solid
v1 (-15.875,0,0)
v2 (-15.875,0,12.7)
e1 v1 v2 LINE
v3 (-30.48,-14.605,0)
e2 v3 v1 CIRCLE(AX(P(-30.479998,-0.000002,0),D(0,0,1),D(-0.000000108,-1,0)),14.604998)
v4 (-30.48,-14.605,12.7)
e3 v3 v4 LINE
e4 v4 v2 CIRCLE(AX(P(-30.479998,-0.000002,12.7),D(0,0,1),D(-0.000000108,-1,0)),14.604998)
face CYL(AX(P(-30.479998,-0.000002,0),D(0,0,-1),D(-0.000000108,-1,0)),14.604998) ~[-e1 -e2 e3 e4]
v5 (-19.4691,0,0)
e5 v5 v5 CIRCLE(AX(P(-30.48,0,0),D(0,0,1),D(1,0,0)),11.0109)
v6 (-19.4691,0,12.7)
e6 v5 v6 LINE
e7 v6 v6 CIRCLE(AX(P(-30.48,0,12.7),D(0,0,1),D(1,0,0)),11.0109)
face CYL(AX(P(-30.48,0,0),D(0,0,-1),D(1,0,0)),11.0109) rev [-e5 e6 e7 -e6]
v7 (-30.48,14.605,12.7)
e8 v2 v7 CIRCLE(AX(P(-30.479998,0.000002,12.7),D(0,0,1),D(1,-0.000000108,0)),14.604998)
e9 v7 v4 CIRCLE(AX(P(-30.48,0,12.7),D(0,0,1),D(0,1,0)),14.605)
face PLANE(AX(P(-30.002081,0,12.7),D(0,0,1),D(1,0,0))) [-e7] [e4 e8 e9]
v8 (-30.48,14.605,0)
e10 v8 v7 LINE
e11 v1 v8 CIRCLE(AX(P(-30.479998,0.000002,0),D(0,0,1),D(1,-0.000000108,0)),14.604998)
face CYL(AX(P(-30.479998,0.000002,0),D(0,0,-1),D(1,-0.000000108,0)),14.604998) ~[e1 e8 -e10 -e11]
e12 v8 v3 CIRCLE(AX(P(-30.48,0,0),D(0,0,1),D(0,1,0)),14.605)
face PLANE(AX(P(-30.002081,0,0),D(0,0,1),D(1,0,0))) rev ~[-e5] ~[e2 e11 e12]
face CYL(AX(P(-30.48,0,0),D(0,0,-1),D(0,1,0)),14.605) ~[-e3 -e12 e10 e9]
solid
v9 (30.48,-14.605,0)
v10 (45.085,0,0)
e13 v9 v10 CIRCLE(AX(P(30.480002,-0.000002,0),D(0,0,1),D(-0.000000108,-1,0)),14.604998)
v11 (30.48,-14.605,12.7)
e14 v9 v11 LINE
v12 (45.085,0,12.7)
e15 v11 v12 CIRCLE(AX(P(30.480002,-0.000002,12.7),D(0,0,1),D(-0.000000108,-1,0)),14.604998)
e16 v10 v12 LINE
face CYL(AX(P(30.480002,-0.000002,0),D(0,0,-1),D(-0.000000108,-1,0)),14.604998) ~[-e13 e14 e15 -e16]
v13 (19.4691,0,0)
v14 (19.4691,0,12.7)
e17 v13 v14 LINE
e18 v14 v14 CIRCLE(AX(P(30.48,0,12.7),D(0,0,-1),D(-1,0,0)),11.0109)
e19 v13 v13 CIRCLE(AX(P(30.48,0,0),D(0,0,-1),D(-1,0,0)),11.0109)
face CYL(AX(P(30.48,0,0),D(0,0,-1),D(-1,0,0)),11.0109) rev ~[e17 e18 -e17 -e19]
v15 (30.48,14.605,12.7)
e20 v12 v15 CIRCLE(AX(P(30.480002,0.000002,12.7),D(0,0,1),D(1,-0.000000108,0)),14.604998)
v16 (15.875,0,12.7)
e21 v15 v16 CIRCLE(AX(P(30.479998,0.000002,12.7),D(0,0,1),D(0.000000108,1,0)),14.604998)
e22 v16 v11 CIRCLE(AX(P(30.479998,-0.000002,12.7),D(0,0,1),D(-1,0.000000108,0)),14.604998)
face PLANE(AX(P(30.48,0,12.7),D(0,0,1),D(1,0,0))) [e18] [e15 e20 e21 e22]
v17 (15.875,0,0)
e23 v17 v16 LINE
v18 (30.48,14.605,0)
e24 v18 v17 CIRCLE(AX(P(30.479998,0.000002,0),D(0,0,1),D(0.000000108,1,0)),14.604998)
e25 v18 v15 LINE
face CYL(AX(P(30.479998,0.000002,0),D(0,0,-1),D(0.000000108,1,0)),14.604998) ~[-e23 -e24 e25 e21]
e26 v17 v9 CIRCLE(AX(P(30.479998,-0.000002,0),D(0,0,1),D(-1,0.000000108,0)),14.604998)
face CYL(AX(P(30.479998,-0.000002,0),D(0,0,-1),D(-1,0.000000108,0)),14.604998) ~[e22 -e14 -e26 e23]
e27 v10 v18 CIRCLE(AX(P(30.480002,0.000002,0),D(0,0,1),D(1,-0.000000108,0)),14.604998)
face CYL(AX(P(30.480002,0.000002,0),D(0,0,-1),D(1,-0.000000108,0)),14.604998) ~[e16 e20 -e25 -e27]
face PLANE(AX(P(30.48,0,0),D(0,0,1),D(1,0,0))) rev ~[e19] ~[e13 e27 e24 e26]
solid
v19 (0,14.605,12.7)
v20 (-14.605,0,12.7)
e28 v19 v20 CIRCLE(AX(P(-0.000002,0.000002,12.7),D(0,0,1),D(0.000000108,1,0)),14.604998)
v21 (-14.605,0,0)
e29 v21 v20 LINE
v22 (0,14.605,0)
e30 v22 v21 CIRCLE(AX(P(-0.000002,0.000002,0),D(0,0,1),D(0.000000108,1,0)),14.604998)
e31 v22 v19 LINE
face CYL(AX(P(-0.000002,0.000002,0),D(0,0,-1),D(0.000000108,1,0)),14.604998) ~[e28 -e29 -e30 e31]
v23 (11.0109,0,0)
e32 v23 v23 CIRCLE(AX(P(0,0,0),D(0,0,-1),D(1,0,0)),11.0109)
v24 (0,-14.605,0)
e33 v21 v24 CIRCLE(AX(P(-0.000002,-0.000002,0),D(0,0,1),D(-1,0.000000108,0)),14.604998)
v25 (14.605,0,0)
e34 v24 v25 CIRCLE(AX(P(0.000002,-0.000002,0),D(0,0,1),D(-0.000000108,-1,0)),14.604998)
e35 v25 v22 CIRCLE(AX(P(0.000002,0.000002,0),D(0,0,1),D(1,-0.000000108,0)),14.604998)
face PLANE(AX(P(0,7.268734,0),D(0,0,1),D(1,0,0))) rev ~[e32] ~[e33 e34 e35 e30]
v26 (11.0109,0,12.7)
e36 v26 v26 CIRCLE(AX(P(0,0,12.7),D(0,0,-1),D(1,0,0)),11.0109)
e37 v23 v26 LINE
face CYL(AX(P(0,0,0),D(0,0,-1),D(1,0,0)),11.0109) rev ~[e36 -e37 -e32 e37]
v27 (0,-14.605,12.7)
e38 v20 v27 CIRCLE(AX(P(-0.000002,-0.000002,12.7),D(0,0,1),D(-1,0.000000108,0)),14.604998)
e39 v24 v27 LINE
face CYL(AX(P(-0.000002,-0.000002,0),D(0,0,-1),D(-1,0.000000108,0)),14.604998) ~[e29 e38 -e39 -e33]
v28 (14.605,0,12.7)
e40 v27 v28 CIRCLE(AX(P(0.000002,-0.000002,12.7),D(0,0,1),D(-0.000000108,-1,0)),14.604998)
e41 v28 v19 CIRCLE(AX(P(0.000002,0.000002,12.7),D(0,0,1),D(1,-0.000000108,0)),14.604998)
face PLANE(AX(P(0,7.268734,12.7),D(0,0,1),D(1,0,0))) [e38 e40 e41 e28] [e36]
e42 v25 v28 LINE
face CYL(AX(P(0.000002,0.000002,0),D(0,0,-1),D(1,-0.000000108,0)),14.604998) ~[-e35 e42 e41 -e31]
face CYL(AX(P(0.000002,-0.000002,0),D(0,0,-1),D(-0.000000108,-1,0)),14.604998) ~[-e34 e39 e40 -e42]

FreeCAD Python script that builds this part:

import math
import FreeCAD as App
import Part
import Sketcher

V = App.Vector
Q = App.Units.Quantity

doc = App.newDocument("Part")
body = doc.addObject("PartDesign::Body", "Body")
body.AllowCompound = True

# Sketch on XY plane
sketch1 = body.newObject("Sketcher::SketchObject", "Sketch")
sketch1.AttachmentSupport = (doc.getObject("XY_Plane"), [""])
sketch1.MapMode = "FlatFace"
sketch1.addGeometry([
    Part.ArcOfCircle(Part.Circle(V(-30, 0, 0), V(0, 0, 1), 15), math.radians(-90), math.radians(0)),  # 0
    Part.ArcOfCircle(Part.Circle(V(-30, 0, 0), V(0, 0, 1), 15), math.radians(0), math.radians(90)),  # 1
    Part.ArcOfCircle(Part.Circle(V(-30, 0, 0), V(0, 0, 1), 15), math.radians(90), math.radians(270)),  # 2
    Part.Circle(V(-30, 0, 0), V(0, 0, 1), 11),  # 3
    Part.ArcOfCircle(Part.Circle(V(0, 0, 0), V(0, 0, 1), 15), math.radians(0), math.radians(90)),  # 4
    Part.ArcOfCircle(Part.Circle(V(0, 0, 0), V(0, 0, 1), 15), math.radians(90), math.radians(180)),  # 5
    Part.ArcOfCircle(Part.Circle(V(0, 0, 0), V(0, 0, 1), 15), math.radians(180), math.radians(270)),  # 6
    Part.ArcOfCircle(Part.Circle(V(0, 0, 0), V(0, 0, 1), 15), math.radians(-90), math.radians(0)),  # 7
    Part.Circle(V(0, 0, 0), V(0, 0, 1), 11),  # 8
    Part.ArcOfCircle(Part.Circle(V(30, 0, 0), V(0, 0, 1), 15), math.radians(90), math.radians(180)),  # 9
    Part.ArcOfCircle(Part.Circle(V(30, 0, 0), V(0, 0, 1), 15), math.radians(180), math.radians(270)),  # 10
    Part.ArcOfCircle(Part.Circle(V(30, 0, 0), V(0, 0, 1), 15), math.radians(-90), math.radians(0)),  # 11
    Part.ArcOfCircle(Part.Circle(V(30, 0, 0), V(0, 0, 1), 15), math.radians(0), math.radians(90)),  # 12
    Part.Circle(V(30, 0, 0), V(0, 0, 1), 11),  # 13
], False)
sketch1.addConstraint([
    Sketcher.Constraint("Tangent", 0, 2, 1, 1),
    Sketcher.Constraint("Tangent", 1, 2, 2, 1),
    Sketcher.Constraint("Tangent", 2, 2, 0, 1),
    Sketcher.Constraint("Tangent", 4, 2, 5, 1),
    Sketcher.Constraint("Tangent", 5, 2, 6, 1),
    Sketcher.Constraint("Tangent", 6, 2, 7, 1),
    Sketcher.Constraint("Tangent", 7, 2, 4, 1),
    Sketcher.Constraint("Tangent", 9, 2, 10, 1),
    Sketcher.Constraint("Tangent", 10, 2, 11, 1),
    Sketcher.Constraint("Tangent", 11, 2, 12, 1),
    Sketcher.Constraint("Tangent", 12, 2, 9, 1),
    Sketcher.Constraint("Coincident", 4, 3, -1, 1),
    Sketcher.Constraint("Coincident", 8, 3, -1, 1),
    Sketcher.Constraint("Coincident", 3, 3, 0, 3),
    Sketcher.Constraint("Coincident", 13, 3, 9, 3),
    Sketcher.Constraint("Equal", 2, 4),
    Sketcher.Constraint("Equal", 4, 5),
    Sketcher.Constraint("Equal", 3, 8),
    Sketcher.Constraint("Equal", 7, 9),
    Sketcher.Constraint("Equal", 9, 10),
    Sketcher.Constraint("Equal", 8, 13),
    Sketcher.Constraint("Symmetric", 0, 3, 9, 3, -1, 1),
    Sketcher.Constraint("Symmetric", 2, 2, 10, 2, -2),
    Sketcher.Constraint("PointOnObject", 0, 2, -1),
    Sketcher.Constraint("PointOnObject", 4, 2, -2),
    Sketcher.Constraint("PointOnObject", 5, 2, -1),
    Sketcher.Constraint("PointOnObject", 6, 2, -2),
    Sketcher.Constraint("PointOnObject", 7, 2, -1),
    Sketcher.Constraint("PointOnObject", 9, 2, -1),
    Sketcher.Constraint("PointOnObject", 11, 2, -1),
    Sketcher.Constraint("Vertical", 3, 3, 1, 2),
    Sketcher.Constraint("Vertical", 1, 2, 2, 2),
    Sketcher.Constraint("Vertical", 10, 2, 12, 2),
    Sketcher.Constraint("Diameter", 3, Q("0.867 in")),
    Sketcher.Constraint("Radius", 0, Q("0.5749999 in")),
    Sketcher.Constraint("DistanceX", 0, 3, -1, 1, Q("1.1999999 in")),
])
pad1 = body.newObject("PartDesign::Pad", "Pad")
pad1.Profile = sketch1
pad1.Length = Q("0.5 in")

doc.recompute()
